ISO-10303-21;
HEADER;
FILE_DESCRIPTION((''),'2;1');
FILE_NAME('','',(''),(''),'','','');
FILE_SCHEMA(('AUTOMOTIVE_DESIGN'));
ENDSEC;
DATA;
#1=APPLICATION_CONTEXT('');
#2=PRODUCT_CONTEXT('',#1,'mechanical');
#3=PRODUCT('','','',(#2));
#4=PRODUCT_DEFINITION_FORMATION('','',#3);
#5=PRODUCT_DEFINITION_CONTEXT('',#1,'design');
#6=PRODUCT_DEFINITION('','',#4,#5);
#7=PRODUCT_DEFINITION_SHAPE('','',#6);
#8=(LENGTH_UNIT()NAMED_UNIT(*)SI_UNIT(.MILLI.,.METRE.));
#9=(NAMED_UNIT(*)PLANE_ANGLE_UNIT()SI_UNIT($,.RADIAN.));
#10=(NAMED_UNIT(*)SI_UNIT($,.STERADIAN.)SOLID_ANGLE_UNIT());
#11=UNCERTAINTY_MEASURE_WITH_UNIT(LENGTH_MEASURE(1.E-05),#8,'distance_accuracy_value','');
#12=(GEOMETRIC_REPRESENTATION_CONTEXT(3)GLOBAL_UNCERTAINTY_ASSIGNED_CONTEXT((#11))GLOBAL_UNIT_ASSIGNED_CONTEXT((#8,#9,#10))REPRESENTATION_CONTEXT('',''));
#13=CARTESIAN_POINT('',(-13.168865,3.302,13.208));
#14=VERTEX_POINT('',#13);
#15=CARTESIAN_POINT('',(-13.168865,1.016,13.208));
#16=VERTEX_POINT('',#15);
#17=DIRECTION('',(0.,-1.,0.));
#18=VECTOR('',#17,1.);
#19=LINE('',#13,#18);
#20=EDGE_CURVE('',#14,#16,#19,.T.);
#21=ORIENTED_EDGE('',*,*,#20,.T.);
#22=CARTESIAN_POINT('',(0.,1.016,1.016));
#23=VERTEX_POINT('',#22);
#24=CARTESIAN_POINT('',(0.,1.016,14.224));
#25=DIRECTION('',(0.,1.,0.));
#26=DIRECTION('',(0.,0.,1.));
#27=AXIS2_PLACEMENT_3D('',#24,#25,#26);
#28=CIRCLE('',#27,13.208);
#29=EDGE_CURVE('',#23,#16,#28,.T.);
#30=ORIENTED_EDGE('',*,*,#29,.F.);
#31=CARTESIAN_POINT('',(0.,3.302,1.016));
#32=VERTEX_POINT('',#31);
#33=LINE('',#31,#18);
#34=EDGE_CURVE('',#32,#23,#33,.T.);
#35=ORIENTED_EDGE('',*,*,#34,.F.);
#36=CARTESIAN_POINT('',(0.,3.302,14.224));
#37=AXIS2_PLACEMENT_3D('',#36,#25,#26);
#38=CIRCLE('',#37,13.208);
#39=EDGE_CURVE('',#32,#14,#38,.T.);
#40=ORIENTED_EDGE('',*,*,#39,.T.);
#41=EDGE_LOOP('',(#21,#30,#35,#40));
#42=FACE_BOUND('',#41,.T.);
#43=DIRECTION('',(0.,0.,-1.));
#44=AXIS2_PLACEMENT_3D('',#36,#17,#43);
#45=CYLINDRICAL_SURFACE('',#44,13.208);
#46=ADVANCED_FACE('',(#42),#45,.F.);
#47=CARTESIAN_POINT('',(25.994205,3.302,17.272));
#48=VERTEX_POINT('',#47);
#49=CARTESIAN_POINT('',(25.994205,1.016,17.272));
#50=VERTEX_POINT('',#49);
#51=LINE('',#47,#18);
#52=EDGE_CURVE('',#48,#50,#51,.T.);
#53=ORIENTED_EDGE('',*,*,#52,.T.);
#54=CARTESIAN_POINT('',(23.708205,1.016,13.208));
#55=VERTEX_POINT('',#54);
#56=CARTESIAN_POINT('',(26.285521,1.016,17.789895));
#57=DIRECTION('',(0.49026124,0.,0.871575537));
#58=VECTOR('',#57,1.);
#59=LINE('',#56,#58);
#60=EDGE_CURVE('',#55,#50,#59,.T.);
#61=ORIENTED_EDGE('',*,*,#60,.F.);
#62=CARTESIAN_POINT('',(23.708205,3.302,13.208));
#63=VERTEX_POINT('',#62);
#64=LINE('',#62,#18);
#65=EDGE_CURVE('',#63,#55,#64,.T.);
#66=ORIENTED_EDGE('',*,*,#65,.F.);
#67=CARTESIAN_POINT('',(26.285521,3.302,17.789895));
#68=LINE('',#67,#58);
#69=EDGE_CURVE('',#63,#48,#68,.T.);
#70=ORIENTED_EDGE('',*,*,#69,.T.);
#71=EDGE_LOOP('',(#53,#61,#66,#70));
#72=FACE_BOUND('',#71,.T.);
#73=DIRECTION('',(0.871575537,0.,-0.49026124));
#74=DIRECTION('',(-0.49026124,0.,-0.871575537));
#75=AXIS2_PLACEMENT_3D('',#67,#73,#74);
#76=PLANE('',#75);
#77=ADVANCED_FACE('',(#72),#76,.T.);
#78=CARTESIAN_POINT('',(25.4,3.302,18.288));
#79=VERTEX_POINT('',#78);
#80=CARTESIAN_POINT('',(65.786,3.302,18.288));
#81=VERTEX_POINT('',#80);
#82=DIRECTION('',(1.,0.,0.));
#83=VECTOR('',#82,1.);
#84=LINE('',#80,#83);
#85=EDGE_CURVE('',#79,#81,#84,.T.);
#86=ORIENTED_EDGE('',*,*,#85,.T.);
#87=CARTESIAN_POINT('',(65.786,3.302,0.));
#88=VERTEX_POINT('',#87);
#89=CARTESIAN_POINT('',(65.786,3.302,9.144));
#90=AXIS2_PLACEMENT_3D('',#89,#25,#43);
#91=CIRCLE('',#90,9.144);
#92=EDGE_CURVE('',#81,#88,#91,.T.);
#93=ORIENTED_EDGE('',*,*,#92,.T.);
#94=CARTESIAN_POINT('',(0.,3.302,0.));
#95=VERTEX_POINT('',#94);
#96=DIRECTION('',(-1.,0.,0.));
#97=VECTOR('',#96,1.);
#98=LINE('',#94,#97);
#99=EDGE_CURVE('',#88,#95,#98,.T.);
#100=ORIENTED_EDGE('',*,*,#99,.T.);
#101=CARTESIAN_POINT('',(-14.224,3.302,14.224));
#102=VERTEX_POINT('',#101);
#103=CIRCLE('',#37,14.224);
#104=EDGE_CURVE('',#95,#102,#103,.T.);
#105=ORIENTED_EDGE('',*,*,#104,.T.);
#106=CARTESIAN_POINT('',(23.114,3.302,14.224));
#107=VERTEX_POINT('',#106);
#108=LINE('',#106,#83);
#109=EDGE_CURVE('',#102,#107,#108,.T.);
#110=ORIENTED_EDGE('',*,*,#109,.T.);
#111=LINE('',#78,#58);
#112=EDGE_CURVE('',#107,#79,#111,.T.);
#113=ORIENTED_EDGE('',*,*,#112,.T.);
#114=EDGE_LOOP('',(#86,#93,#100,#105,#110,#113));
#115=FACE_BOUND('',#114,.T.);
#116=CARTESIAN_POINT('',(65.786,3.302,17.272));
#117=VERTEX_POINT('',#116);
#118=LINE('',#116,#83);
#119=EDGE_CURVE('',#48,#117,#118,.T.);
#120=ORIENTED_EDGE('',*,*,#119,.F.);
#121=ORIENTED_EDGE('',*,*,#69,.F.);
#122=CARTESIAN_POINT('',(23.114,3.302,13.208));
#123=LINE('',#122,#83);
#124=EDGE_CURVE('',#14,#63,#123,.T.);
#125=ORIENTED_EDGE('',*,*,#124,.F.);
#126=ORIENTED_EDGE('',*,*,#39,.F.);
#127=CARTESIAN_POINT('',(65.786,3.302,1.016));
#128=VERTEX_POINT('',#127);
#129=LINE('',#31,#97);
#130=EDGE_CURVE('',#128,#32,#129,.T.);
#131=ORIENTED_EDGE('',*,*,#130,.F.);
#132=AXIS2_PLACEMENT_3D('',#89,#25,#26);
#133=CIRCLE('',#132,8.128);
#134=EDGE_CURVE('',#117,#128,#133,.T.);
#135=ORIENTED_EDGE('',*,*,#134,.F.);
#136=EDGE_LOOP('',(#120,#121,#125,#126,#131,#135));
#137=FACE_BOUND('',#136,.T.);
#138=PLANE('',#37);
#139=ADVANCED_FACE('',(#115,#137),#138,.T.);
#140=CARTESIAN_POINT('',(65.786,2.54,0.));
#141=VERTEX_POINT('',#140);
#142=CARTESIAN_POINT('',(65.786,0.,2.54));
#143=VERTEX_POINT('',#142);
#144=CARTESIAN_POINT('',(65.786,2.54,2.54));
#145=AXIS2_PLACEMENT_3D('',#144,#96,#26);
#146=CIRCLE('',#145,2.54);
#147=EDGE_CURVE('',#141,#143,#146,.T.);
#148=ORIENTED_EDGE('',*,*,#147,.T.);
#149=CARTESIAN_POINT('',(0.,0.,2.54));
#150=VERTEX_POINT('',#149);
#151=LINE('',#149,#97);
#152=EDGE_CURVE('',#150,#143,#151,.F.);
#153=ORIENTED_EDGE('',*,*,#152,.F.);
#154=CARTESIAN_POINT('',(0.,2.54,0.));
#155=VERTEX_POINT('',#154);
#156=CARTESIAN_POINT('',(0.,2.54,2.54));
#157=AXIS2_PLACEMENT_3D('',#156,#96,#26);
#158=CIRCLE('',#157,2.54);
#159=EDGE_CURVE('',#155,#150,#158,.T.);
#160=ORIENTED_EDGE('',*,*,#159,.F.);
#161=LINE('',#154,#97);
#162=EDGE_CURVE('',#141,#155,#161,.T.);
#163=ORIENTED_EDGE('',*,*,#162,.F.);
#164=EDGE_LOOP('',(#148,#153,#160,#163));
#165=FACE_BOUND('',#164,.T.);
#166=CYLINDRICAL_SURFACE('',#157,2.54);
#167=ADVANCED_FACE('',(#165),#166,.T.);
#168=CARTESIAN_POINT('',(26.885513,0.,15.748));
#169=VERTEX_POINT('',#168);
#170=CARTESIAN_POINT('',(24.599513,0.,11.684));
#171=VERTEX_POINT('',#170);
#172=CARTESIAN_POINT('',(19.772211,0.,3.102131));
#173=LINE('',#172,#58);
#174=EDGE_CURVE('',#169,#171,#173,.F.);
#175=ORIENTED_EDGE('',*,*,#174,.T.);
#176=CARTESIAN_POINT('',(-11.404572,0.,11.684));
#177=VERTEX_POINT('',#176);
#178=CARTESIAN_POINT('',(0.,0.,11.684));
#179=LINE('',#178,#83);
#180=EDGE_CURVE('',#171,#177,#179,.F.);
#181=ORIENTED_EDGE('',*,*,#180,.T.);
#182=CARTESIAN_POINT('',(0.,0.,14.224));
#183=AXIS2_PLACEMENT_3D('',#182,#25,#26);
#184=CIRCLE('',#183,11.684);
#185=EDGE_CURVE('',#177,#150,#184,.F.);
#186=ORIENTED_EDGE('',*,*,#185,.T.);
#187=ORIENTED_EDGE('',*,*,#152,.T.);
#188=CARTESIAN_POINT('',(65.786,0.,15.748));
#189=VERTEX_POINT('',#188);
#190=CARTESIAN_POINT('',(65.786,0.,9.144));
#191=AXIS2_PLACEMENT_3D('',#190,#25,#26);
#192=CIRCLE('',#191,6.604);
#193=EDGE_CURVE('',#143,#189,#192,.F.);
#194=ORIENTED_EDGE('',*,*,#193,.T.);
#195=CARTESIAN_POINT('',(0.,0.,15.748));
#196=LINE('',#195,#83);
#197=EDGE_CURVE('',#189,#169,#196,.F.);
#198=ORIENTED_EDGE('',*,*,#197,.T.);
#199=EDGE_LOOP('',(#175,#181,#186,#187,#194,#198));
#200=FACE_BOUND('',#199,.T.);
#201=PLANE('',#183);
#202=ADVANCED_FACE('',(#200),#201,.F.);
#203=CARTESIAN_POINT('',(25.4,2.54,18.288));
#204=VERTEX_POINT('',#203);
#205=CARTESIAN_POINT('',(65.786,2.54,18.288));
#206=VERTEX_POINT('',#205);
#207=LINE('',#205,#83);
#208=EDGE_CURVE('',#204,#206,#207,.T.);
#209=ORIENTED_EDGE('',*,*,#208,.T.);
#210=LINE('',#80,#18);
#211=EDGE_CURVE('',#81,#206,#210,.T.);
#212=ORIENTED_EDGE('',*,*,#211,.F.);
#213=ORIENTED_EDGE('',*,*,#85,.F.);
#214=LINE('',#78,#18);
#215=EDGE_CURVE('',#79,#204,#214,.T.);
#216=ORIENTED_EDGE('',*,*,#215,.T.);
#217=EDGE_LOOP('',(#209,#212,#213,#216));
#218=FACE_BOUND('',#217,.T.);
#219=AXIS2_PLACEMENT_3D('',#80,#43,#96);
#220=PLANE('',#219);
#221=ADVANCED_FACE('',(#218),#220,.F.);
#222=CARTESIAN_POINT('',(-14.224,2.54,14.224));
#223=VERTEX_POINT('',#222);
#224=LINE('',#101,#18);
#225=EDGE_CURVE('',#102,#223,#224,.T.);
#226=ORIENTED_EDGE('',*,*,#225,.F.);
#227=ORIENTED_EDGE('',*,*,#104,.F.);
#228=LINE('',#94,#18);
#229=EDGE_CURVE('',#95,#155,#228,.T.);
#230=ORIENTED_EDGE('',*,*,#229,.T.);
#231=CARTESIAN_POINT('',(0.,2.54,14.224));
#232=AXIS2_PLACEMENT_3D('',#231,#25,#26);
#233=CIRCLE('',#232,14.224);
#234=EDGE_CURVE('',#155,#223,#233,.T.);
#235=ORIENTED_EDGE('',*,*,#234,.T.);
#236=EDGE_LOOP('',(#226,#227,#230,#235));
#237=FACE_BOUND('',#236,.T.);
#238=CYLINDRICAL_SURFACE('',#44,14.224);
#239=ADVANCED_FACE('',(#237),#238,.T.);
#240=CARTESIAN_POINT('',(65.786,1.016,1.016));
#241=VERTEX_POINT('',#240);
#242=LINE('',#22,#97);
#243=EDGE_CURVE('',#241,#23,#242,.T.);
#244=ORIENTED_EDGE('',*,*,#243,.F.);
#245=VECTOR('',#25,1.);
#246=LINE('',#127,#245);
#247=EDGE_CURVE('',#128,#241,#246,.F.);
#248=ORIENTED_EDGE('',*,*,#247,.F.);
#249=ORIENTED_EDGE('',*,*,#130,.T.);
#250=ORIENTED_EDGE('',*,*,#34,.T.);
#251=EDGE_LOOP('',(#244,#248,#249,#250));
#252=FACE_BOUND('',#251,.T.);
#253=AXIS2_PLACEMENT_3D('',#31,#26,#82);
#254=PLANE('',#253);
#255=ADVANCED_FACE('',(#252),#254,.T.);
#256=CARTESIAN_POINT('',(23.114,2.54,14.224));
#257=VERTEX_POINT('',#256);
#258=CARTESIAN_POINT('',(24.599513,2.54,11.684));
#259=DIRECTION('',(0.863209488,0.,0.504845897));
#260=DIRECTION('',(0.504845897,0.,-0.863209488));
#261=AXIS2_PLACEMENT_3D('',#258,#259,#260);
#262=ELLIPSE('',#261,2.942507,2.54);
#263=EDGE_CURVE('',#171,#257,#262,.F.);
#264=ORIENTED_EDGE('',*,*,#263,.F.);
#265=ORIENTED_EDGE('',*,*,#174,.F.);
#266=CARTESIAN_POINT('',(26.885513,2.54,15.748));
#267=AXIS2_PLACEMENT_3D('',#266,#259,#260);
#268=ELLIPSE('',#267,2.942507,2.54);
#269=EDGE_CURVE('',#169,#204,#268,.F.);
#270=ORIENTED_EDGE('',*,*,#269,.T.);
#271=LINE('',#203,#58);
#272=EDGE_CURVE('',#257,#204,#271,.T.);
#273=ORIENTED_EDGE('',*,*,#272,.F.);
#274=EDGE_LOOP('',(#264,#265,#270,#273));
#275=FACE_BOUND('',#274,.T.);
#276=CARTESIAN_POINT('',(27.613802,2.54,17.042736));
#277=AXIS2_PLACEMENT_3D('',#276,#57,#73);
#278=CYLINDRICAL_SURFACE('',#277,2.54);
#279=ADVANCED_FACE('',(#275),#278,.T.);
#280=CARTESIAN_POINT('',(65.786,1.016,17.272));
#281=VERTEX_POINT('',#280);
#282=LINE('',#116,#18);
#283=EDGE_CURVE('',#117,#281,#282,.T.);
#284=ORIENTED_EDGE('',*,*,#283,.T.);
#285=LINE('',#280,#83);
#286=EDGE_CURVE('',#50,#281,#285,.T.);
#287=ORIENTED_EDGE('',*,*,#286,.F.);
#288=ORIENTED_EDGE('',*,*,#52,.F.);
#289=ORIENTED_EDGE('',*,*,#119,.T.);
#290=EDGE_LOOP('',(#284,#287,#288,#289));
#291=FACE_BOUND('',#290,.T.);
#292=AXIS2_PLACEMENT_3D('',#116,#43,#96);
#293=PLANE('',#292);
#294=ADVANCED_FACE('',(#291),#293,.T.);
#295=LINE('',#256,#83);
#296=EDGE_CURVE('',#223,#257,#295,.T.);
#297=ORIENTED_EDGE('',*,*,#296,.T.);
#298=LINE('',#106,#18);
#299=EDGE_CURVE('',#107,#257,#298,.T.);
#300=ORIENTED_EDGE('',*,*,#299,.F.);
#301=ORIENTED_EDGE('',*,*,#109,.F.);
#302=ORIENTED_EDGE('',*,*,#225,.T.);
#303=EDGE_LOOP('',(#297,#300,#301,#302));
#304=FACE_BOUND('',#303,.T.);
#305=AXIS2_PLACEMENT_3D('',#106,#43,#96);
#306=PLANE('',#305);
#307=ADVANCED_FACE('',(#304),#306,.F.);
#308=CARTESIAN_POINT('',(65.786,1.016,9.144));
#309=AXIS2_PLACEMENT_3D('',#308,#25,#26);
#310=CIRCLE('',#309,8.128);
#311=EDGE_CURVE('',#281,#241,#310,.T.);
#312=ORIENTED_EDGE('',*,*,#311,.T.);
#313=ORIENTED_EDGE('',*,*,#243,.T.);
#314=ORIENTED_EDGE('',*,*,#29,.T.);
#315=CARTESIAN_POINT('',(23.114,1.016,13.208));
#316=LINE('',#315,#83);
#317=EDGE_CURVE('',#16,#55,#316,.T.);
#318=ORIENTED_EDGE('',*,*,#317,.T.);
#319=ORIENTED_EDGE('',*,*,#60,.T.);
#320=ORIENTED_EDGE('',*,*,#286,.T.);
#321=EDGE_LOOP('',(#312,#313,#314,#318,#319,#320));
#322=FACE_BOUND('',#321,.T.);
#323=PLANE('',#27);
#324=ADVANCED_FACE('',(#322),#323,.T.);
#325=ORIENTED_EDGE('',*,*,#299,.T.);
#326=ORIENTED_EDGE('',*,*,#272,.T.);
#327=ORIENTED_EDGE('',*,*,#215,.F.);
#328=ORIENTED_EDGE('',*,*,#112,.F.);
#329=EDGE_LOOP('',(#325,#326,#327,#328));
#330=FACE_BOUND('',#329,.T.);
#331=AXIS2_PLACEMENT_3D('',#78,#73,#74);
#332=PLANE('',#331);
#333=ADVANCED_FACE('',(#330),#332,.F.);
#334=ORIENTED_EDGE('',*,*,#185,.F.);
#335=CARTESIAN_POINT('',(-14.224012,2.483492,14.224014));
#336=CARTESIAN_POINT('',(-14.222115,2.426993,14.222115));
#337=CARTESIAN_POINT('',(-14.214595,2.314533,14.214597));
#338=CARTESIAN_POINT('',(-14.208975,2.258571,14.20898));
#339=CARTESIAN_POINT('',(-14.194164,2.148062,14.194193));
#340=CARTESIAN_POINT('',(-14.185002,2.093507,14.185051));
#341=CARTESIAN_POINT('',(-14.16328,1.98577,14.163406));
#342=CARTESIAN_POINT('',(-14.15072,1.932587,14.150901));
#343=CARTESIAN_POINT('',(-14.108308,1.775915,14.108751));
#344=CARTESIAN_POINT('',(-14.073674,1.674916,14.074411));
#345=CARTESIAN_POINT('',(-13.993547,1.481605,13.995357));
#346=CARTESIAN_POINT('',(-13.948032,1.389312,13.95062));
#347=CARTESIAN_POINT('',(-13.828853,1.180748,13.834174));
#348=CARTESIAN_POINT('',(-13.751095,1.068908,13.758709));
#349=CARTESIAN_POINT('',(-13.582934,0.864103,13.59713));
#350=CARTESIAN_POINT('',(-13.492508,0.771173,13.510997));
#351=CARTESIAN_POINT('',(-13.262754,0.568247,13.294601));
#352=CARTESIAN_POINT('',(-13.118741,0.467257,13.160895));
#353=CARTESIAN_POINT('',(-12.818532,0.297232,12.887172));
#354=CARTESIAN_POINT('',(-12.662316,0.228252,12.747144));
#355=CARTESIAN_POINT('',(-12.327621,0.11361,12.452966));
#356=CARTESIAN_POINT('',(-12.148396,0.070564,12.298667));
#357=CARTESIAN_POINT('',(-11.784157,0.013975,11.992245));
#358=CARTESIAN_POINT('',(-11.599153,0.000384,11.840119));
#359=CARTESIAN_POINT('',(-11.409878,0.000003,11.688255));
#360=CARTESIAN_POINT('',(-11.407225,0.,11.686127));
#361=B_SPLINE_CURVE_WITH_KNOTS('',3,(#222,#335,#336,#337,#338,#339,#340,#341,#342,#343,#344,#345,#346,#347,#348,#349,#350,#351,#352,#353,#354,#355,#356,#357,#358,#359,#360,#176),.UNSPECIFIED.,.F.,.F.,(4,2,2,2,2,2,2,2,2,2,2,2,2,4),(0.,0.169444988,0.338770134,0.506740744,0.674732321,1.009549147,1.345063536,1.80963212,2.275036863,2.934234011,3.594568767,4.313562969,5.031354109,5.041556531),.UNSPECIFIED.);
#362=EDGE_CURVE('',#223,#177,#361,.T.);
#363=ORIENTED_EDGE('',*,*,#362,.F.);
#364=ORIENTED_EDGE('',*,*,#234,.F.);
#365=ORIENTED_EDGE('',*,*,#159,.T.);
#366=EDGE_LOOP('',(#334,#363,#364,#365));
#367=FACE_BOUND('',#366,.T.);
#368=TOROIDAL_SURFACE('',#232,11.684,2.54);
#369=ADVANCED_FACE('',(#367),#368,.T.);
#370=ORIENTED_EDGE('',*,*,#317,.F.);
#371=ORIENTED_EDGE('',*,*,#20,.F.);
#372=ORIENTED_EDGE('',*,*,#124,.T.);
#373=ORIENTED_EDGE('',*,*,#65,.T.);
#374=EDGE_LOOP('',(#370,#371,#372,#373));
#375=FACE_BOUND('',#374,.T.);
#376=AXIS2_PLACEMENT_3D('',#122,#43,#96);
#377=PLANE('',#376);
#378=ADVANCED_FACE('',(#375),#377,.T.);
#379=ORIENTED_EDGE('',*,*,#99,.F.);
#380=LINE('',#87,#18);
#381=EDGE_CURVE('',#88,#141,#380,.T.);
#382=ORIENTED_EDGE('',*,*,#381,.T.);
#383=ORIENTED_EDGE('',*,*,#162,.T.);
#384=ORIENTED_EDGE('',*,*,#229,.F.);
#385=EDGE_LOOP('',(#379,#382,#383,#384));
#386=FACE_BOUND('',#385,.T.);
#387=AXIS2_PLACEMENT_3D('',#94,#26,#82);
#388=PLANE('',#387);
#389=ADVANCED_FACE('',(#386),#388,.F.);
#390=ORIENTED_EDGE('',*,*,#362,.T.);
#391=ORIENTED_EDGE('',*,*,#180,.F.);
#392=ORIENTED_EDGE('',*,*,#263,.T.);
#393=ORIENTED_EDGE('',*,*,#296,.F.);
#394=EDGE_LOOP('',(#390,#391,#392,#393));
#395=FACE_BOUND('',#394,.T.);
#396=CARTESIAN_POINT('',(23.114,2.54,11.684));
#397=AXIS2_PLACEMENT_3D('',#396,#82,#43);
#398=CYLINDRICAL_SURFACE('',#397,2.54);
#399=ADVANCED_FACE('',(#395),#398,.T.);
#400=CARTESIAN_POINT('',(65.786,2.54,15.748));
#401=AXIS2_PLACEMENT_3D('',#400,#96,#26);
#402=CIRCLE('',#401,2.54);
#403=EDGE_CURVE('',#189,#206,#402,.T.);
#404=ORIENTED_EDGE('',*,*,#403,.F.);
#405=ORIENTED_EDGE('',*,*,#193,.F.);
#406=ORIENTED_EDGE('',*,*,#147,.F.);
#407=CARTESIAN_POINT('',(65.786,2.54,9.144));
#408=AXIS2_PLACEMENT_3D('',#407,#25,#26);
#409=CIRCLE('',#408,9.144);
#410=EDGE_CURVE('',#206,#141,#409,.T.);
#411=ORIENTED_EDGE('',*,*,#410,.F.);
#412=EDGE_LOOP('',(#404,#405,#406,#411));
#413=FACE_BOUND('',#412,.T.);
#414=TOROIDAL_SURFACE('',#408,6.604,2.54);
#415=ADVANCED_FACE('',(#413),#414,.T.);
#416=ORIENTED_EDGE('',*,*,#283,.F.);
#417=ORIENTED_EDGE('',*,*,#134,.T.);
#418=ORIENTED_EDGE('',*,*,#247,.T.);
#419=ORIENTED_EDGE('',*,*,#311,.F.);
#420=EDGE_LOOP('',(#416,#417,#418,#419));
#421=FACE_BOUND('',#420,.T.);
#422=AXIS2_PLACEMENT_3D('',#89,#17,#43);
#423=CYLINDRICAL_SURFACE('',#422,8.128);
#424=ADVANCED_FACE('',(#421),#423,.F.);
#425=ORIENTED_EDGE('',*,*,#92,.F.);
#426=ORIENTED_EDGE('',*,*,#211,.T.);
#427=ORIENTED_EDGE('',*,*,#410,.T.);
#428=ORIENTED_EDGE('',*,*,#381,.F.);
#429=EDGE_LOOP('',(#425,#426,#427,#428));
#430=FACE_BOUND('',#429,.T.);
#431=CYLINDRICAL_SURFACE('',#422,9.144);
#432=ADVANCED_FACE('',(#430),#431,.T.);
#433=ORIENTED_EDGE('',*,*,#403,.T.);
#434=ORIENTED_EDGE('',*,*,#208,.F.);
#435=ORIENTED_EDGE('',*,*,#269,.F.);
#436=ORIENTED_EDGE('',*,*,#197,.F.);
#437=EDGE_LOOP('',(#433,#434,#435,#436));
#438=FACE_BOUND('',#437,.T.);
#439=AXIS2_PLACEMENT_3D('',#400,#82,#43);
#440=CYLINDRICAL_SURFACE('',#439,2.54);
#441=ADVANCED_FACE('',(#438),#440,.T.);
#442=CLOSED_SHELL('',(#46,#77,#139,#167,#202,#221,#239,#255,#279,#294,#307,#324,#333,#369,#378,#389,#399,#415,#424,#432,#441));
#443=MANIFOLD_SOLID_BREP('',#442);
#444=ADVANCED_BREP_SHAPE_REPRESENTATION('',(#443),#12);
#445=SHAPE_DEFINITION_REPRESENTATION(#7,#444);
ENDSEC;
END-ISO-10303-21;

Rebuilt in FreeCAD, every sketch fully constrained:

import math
import FreeCAD as App
import Part
import Sketcher

V = App.Vector
Q = App.Units.Quantity


def edges_at(feature, points):
    """Names of the edges that pass closest to the given points."""
    edges = feature.Shape.Edges
    near = lambda p: min(range(len(edges)), key=lambda i: edges[i].distToShape(Part.Vertex(*p))[0])
    return sorted({f"Edge{near(p) + 1}" for p in points})


def faces_at(feature, points):
    """Names of the faces that lie closest to the given points."""
    faces = feature.Shape.Faces
    near = lambda p: min(range(len(faces)), key=lambda i: faces[i].distToShape(Part.Vertex(*p))[0])
    return sorted({f"Face{near(p) + 1}" for p in points})

doc = App.newDocument("Part")
params = doc.addObject("Spreadsheet::Sheet", "Params")
for row, (alias, value) in enumerate([
    ("sketch1_radius", "0.56 in"),
    ("sketch1_radius2", "0.36 in"),
    ("sketch1_width", "2.59 in"),
    ("sketch1_width2", "1.47 in"),
    ("pad1_length", "0.13 in"),
    ("thickness_wall", "0.04 in"),
    ("fillet_radius", "0.1 in"),
], start=1):
    params.set(f"A{row}", alias)
    params.set(f"B{row}", "=" + value)
    params.setAlias(f"B{row}", alias)

body = doc.addObject("PartDesign::Body", "Body")

sketch1 = body.newObject("Sketcher::SketchObject", "Sketch")
sketch1.AttachmentSupport = (doc.getObject("XZ_Plane"), [""])
sketch1.MapMode = "FlatFace"
sketch1.addGeometry(Part.LineSegment(V(65.8, 0, 0), V(0, 0, 0)), False)
sketch1.addGeometry(Part.ArcOfCircle(Part.Circle(V(0, 14.2, 0), V(0, 0, 1), 14.2), math.radians(180), math.radians(270)), False)
sketch1.addGeometry(Part.LineSegment(V(-14.2, 14.2, 0), V(23.1, 14.2, 0)), False)
sketch1.addGeometry(Part.LineSegment(V(23.1, 14.2, 0), V(25.4, 18.3, 0)), False)
sketch1.addGeometry(Part.LineSegment(V(25.4, 18.3, 0), V(65.8, 18.3, 0)), False)
sketch1.addGeometry(Part.ArcOfCircle(Part.Circle(V(65.8, 9.1, 0), V(0, 0, 1), 9.1), math.radians(-90), math.radians(90)), False)
sketch1.addConstraint(Sketcher.Constraint("Tangent", 0, 2, 1, 2))
sketch1.addConstraint(Sketcher.Constraint("Coincident", 1, 1, 2, 1))
sketch1.addConstraint(Sketcher.Constraint("Coincident", 2, 2, 3, 1))
sketch1.addConstraint(Sketcher.Constraint("Coincident", 3, 2, 4, 1))
sketch1.addConstraint(Sketcher.Constraint("Tangent", 4, 2, 5, 2))
sketch1.addConstraint(Sketcher.Constraint("Tangent", 5, 1, 0, 1))
sketch1.addConstraint(Sketcher.Constraint("Horizontal", 0))
sketch1.addConstraint(Sketcher.Constraint("Horizontal", 2))
sketch1.addConstraint(Sketcher.Constraint("Horizontal", 4))
sketch1.addConstraint(Sketcher.Constraint("Coincident", 0, 2, -1, 1))
sketch1.addConstraint(Sketcher.Constraint("Radius", 1, Q("0.56 in")))
sketch1.addConstraint(Sketcher.Constraint("Radius", 5, Q("0.36 in")))
sketch1.addConstraint(Sketcher.Constraint("DistanceX", -1, 1, 3, 2, Q("1 in")))
sketch1.addConstraint(Sketcher.Constraint("DistanceX", 0, 2, 0, 1, Q("2.59 in")))
sketch1.addConstraint(Sketcher.Constraint("DistanceX", 2, 1, 2, 2, Q("1.47 in")))
sketch1.addConstraint(Sketcher.Constraint("DistanceY", 5, 3, 1, 1, Q("0.2 in")))
sketch1.setExpression("Constraints[10]", "Params.sketch1_radius")
sketch1.setExpression("Constraints[11]", "Params.sketch1_radius2")
sketch1.setExpression("Constraints[13]", "Params.sketch1_width")
sketch1.setExpression("Constraints[14]", "Params.sketch1_width2")
pad1 = body.newObject("PartDesign::Pad", "Pad")
pad1.Profile = sketch1
pad1.setExpression("Length", "Params.pad1_length")
pad1.Reversed = True
doc.recompute()

thickness = body.newObject("PartDesign::Thickness", "Thickness")
thickness.Base = (pad1, faces_at(pad1, [(30.353, 3.302, 9.144)]))
thickness.setExpression("Value", "Params.thickness_wall")
thickness.Reversed = True
thickness.Join = "Intersection"
doc.recompute()

fillet = body.newObject("PartDesign::Fillet", "Fillet")
fillet.Base = (thickness, edges_at(thickness, [
    (32.893, 0, 0),
    (74.93, 0, 9.144),
    (45.593, 0, 18.288),
    (24.257, 0, 16.256),
    (4.445, 0, 14.224),
    (-10.058, 0, 4.166),
]))
fillet.setExpression("Radius", "Params.fillet_radius")

doc.recompute()
